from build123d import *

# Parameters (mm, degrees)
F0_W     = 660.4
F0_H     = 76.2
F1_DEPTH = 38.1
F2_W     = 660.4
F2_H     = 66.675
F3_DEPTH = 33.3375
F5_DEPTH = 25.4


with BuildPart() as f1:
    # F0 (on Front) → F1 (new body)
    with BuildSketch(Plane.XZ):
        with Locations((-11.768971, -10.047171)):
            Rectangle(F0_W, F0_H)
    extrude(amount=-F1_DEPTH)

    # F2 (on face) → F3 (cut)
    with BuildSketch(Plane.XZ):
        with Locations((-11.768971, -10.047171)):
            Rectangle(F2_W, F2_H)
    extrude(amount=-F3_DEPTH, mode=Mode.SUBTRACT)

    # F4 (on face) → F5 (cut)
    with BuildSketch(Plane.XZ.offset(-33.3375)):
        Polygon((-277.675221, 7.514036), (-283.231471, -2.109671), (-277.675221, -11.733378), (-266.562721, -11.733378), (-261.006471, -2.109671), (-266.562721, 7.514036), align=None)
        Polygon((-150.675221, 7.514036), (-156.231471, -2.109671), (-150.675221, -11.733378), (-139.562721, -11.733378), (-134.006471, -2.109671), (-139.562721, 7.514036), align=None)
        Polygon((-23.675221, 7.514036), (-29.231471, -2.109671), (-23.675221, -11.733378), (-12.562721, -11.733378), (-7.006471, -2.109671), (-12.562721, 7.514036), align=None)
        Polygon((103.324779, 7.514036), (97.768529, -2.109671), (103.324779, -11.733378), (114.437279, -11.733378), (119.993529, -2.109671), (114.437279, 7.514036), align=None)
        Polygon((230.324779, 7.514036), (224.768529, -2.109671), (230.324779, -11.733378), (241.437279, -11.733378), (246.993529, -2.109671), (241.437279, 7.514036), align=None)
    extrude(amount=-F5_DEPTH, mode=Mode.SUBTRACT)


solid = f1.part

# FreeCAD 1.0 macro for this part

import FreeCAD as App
import Part
import Sketcher
Q = App.Units.Quantity


def add_polygon(sketch, points):
    """Adds a closed chain of lines whose ends are joined by coincident constraints."""
    first, n = sketch.GeometryCount, len(points)
    for a, b in zip(points, points[1:] + points[:1]):
        sketch.addGeometry(Part.LineSegment(App.Vector(*a, 0), App.Vector(*b, 0)), False)
    for i in range(n):
        sketch.addConstraint(Sketcher.Constraint("Coincident", first + i, 2, first + (i + 1) % n, 1))

doc = App.newDocument("Part")
params = doc.addObject("Spreadsheet::Sheet", "Params")
for row, (alias, value) in enumerate([
    ("sketch1_width", "26 in"),
    ("sketch1_height", "3 in"),
    ("pad1_length", "1.5 in"),
    ("sketch2_width", "26 in"),
    ("sketch2_height", "2.625 in"),
    ("pocket1_length", "1.3125 in"),
    ("sketch3_width", "0.4375 in"),
    ("sketch3_length", "0.4375 in"),
    ("pocket2_length", "1 in"),
], start=1):
    params.set(f"A{row}", alias)
    params.set(f"B{row}", "=" + value)
    params.setAlias(f"B{row}", alias)

body = doc.addObject("PartDesign::Body", "Body")

# Sketch on XZ plane
sketch1 = body.newObject("Sketcher::SketchObject", "Sketch")
sketch1.AttachmentSupport = (doc.getObject("XZ_Plane"), [""])
sketch1.MapMode = "FlatFace"
add_polygon(sketch1, [(-342, 28), (-342, -48), (318, -48), (318, 28)])  # lines 0-3
sketch1.addConstraint([
    Sketcher.Constraint("Vertical", 0),
    Sketcher.Constraint("Horizontal", 1),
    Sketcher.Constraint("Vertical", 2),
    Sketcher.Constraint("Horizontal", 3),
    Sketcher.Constraint("DistanceX", 1, 1, 1, 2, Q("26 in")),
    Sketcher.Constraint("DistanceY", 0, 2, 0, 1, Q("3 in")),
    Sketcher.Constraint("DistanceX", 0, 2, -1, 1, Q("341.968971 mm")),
    Sketcher.Constraint("DistanceY", 0, 2, -1, 1, Q("48.147171 mm")),
])
sketch1.setExpression("Constraints[8]", "Params.sketch1_width")
sketch1.setExpression("Constraints[9]", "Params.sketch1_height")
pad1 = body.newObject("PartDesign::Pad", "Pad")
pad1.Profile = sketch1
pad1.setExpression("Length", "Params.pad1_length")
pad1.Reversed = True

# Sketch on XZ plane
sketch2 = body.newObject("Sketcher::SketchObject", "Sketch001")
sketch2.AttachmentSupport = (doc.getObject("XZ_Plane"), [""])
sketch2.MapMode = "FlatFace"
add_polygon(sketch2, [(-342, 23), (-342, -43), (318, -43), (318, 23)])  # lines 0-3
sketch2.addConstraint([
    Sketcher.Constraint("Vertical", 0),
    Sketcher.Constraint("Horizontal", 1),
    Sketcher.Constraint("Vertical", 2),
    Sketcher.Constraint("Horizontal", 3),
    Sketcher.Constraint("DistanceX", 1, 1, 1, 2, Q("26 in")),
    Sketcher.Constraint("DistanceY", 0, 2, 0, 1, Q("2.625 in")),
    Sketcher.Constraint("DistanceX", 0, 2, -1, 1, Q("341.968971 mm")),
    Sketcher.Constraint("DistanceY", 0, 2, -1, 1, Q("43.384671 mm")),
])
sketch2.setExpression("Constraints[8]", "Params.sketch2_width")
sketch2.setExpression("Constraints[9]", "Params.sketch2_height")
pocket1 = body.newObject("PartDesign::Pocket", "Pocket")
pocket1.Profile = sketch2
pocket1.setExpression("Length", "Params.pocket1_length")

# Sketch on XZ plane
sketch3 = body.newObject("Sketcher::SketchObject", "Sketch002")
sketch3.AttachmentSupport = (doc.getObject("XZ_Plane"), [""])
sketch3.MapMode = "FlatFace"
sketch3.AttachmentOffset = App.Placement(App.Vector(0, 0, -1.3125 * 25.4), App.Rotation())
add_polygon(sketch3, [(-278, 8), (-283, -2), (-278, -12), (-267, -12), (-261, -2), (-267, 8)])  # lines 0-5
add_polygon(sketch3, [(-151, 8), (-156, -2), (-151, -12), (-140, -12), (-134, -2), (-140, 8)])  # lines 6-11
add_polygon(sketch3, [(-24, 8), (-29, -2), (-24, -12), (-13, -12), (-7, -2), (-13, 8)])  # lines 12-17
add_polygon(sketch3, [(103, 8), (98, -2), (103, -12), (114, -12), (120, -2), (114, 8)])  # lines 18-23
add_polygon(sketch3, [(230, 8), (225, -2), (230, -12), (241, -12), (247, -2), (241, 8)])  # lines 24-29
sketch3.addConstraint([
    Sketcher.Constraint("Horizontal", 2),
    Sketcher.Constraint("Horizontal", 5),
    Sketcher.Constraint("Horizontal", 8),
    Sketcher.Constraint("Horizontal", 11),
    Sketcher.Constraint("Horizontal", 14),
    Sketcher.Constraint("Horizontal", 17),
    Sketcher.Constraint("Horizontal", 20),
    Sketcher.Constraint("Horizontal", 23),
    Sketcher.Constraint("Horizontal", 26),
    Sketcher.Constraint("Horizontal", 29),
    Sketcher.Constraint("Parallel", 0, 3),
    Sketcher.Constraint("Parallel", 1, 4),
    Sketcher.Constraint("Parallel", 3, 6),
    Sketcher.Constraint("Parallel", 4, 7),
    Sketcher.Constraint("Parallel", 6, 9),
    Sketcher.Constraint("Parallel", 7, 10),
    Sketcher.Constraint("Parallel", 9, 12),
    Sketcher.Constraint("Parallel", 10, 13),
    Sketcher.Constraint("Parallel", 12, 15),
    Sketcher.Constraint("Parallel", 13, 16),
    Sketcher.Constraint("Parallel", 15, 18),
    Sketcher.Constraint("Parallel", 16, 19),
    Sketcher.Constraint("Parallel", 18, 21),
    Sketcher.Constraint("Parallel", 19, 22),
    Sketcher.Constraint("Parallel", 21, 24),
    Sketcher.Constraint("Parallel", 22, 25),
    Sketcher.Constraint("Parallel", 24, 27),
    Sketcher.Constraint("Parallel", 25, 28),
    Sketcher.Constraint("Horizontal", 0, 2, 3, 2),
    Sketcher.Constraint("Horizontal", 3, 2, 6, 2),
    Sketcher.Constraint("Horizontal", 2, 2, 7, 2),
    Sketcher.Constraint("Horizontal", 6, 2, 9, 2),
    Sketcher.Constraint("Horizontal", 5, 2, 10, 2),
    Sketcher.Constraint("Horizontal", 9, 2, 12, 2),
    Sketcher.Constraint("Horizontal", 8, 2, 13, 2),
    Sketcher.Constraint("Horizontal", 12, 2, 15, 2),
    Sketcher.Constraint("Horizontal", 11, 2, 16, 2),
    Sketcher.Constraint("Horizontal", 15, 2, 18, 2),
    Sketcher.Constraint("Horizontal", 14, 2, 19, 2),
    Sketcher.Constraint("Horizontal", 18, 2, 21, 2),
    Sketcher.Constraint("Horizontal", 17, 2, 22, 2),
    Sketcher.Constraint("Horizontal", 21, 2, 24, 2),
    Sketcher.Constraint("Horizontal", 20, 2, 25, 2),
    Sketcher.Constraint("Horizontal", 24, 2, 27, 2),
    Sketcher.Constraint("Horizontal", 23, 2, 28, 2),
    Sketcher.Constraint("Vertical", 2, 2, 4, 2),
    Sketcher.Constraint("Vertical", 1, 2, 5, 2),
    Sketcher.Constraint("Equal", 5, 8),
    Sketcher.Constraint("Equal", 11, 14),
    Sketcher.Constraint("Equal", 17, 20),
    Sketcher.Constraint("Equal", 23, 26),
    Sketcher.Constraint("Angle", 0, Q("-120.000001 deg")),
    Sketcher.Constraint("DistanceX", 1, 2, 7, 2, Q("5 in")),
    Sketcher.Constraint("DistanceX", 7, 2, 13, 2, Q("5 in")),
    Sketcher.Constraint("DistanceX", 13, 2, 19, 2, Q("5 in")),
    Sketcher.Constraint("DistanceX", 19, 2, 25, 2, Q("5 in")),
    Sketcher.Constraint("DistanceX", 2, 1, 2, 2, Q("0.4375 in")),
    Sketcher.Constraint("Distance", 0, Q("0.4375 in")),
    Sketcher.Constraint("DistanceX", 0, 2, -1, 1, Q("283.231471 mm")),
    Sketcher.Constraint("DistanceY", 0, 2, -1, 1, Q("2.109671 mm")),
])
sketch3.setExpression("Constraints[86]", "Params.sketch3_width")
sketch3.setExpression("Constraints[87]", "Params.sketch3_length")
pocket2 = body.newObject("PartDesign::Pocket", "Pocket001")
pocket2.Profile = sketch3
pocket2.setExpression("Length", "Params.pocket2_length")

doc.recompute()
